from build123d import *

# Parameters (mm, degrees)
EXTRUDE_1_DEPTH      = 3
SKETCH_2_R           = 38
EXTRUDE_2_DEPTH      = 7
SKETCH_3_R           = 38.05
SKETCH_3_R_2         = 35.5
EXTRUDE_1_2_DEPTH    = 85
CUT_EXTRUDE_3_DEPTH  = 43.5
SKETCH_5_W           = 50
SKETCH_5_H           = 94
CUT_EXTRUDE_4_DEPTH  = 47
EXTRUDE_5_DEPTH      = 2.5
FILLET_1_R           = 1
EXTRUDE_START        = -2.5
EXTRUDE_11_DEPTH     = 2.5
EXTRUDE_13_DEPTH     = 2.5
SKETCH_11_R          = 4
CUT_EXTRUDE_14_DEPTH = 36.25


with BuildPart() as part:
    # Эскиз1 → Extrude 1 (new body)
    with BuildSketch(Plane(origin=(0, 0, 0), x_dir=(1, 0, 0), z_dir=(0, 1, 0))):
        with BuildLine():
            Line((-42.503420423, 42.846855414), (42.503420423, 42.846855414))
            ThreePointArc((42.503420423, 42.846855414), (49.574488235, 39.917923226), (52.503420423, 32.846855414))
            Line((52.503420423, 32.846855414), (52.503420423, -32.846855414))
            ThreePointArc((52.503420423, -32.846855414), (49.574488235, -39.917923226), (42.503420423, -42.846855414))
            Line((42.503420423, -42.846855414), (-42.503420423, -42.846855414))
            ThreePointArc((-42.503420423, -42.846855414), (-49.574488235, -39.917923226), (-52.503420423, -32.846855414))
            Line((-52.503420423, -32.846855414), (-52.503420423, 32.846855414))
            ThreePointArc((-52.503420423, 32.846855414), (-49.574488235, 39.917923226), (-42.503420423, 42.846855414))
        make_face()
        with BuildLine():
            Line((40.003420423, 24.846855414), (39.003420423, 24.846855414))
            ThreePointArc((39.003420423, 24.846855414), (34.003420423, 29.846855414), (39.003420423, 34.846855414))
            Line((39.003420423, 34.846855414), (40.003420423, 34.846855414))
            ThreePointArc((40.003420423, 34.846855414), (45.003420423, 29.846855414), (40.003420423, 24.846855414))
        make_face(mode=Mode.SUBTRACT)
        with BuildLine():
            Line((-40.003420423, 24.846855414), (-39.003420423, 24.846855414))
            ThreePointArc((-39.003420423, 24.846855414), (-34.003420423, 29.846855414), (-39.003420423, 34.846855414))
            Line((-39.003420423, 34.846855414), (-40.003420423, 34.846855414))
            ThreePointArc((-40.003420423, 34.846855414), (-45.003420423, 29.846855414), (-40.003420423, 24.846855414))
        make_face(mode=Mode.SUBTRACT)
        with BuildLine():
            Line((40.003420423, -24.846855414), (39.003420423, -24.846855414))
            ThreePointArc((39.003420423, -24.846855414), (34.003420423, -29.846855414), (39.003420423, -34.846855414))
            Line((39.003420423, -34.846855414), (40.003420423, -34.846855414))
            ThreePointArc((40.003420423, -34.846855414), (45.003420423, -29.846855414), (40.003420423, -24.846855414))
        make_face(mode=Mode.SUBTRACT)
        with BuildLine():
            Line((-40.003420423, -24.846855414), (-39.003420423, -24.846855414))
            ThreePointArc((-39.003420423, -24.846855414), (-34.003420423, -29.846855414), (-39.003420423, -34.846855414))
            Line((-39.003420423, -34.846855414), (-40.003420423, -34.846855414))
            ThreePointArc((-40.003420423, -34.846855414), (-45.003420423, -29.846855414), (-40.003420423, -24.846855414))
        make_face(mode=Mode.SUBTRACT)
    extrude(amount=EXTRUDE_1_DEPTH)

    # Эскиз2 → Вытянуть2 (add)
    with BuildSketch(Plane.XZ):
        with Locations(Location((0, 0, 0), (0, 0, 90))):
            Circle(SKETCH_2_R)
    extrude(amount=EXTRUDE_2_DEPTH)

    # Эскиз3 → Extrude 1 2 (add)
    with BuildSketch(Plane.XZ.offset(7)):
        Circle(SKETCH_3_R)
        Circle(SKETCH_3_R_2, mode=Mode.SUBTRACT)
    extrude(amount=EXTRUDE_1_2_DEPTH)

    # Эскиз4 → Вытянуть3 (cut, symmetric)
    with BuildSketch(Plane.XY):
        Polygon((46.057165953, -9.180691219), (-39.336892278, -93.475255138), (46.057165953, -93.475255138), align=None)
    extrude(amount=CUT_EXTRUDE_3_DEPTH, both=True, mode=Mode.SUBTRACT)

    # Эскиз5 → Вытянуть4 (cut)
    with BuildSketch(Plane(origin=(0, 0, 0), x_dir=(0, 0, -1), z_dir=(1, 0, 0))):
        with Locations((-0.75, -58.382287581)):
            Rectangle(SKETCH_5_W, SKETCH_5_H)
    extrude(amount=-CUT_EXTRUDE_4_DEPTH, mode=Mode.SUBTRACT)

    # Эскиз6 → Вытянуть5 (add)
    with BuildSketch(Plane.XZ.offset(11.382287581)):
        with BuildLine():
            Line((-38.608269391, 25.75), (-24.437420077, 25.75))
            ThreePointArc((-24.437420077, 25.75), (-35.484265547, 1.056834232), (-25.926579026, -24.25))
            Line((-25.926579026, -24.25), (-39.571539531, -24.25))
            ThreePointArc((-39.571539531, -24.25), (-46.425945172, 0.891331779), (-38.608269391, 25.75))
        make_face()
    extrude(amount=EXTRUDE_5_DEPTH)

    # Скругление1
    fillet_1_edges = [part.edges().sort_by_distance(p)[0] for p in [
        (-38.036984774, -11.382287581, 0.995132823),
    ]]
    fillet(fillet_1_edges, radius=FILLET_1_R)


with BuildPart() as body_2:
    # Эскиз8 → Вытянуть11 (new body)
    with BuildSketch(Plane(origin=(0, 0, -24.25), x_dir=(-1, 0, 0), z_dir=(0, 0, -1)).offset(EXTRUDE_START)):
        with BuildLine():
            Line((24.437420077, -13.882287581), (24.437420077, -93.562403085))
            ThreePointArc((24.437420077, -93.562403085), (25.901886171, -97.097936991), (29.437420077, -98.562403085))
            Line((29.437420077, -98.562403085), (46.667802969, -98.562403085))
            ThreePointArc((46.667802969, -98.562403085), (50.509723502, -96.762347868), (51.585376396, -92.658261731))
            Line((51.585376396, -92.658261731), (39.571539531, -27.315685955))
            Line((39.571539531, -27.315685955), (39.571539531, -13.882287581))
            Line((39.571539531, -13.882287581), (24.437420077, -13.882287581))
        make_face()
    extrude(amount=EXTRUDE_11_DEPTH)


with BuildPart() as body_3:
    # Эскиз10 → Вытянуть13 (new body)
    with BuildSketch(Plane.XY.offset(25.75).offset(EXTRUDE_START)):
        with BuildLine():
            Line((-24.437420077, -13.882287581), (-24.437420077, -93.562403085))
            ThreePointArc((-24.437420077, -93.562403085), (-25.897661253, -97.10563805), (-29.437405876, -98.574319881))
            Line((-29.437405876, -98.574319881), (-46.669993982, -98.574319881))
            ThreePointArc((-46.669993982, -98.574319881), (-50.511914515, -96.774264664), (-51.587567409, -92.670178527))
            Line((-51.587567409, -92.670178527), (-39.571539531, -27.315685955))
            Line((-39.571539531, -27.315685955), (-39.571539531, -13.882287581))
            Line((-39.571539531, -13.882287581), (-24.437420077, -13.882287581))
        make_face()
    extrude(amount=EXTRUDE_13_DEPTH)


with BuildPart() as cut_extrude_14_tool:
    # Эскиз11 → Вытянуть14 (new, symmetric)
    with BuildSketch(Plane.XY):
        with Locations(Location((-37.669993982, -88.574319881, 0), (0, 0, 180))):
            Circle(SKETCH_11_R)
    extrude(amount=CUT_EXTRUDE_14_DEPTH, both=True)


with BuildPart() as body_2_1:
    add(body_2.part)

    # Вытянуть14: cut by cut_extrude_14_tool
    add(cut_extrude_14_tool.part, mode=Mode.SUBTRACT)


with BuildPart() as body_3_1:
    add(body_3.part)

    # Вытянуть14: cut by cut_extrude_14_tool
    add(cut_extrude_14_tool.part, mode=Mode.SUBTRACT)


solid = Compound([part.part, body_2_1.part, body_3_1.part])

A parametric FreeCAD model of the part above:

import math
import FreeCAD as App
import Part
import Sketcher
from FreeCAD import Vector
Q = App.Units.Quantity


def edges_at(feature, points):
    """Names of the edges that pass closest to the given points."""
    edges = feature.Shape.Edges
    near = lambda p: min(range(len(edges)), key=lambda i: edges[i].distToShape(Part.Vertex(*p))[0])
    return sorted({f"Edge{near(p) + 1}" for p in points})

doc = App.newDocument("Part")
body = doc.addObject("PartDesign::Body", "Body")

# Sketch on XZ plane
sketch1 = body.newObject("Sketcher::SketchObject", "Sketch")
sketch1.AttachmentSupport = (doc.getObject("XZ_Plane"), [""])
sketch1.MapMode = "FlatFace"
sketch1.addGeometry([
    Part.LineSegment(Vector(42.5, -42.8, 0), Vector(-42.5, -42.8, 0)),  # 0
    Part.ArcOfCircle(Part.Circle(Vector(-42.5, -32.8, 0), Vector(0, 0, 1), 10), math.radians(180), math.radians(270)),  # 1
    Part.LineSegment(Vector(-52.5, -32.8, 0), Vector(-52.5, 32.8, 0)),  # 2
    Part.ArcOfCircle(Part.Circle(Vector(-42.5, 32.8, 0), Vector(0, 0, 1), 10), math.radians(90), math.radians(180)),  # 3
    Part.LineSegment(Vector(-42.5, 42.8, 0), Vector(42.5, 42.8, 0)),  # 4
    Part.ArcOfCircle(Part.Circle(Vector(42.5, 32.8, 0), Vector(0, 0, 1), 10), math.radians(0), math.radians(90)),  # 5
    Part.LineSegment(Vector(52.5, 32.8, 0), Vector(52.5, -32.8, 0)),  # 6
    Part.ArcOfCircle(Part.Circle(Vector(42.5, -32.8, 0), Vector(0, 0, 1), 10), math.radians(-90), math.radians(0)),  # 7
    Part.ArcOfCircle(Part.Circle(Vector(40, 29.8, 0), Vector(0, 0, 1), 5), math.radians(-90), math.radians(90)),  # 8
    Part.LineSegment(Vector(40, 34.8, 0), Vector(39, 34.8, 0)),  # 9
    Part.ArcOfCircle(Part.Circle(Vector(39, 29.8, 0), Vector(0, 0, 1), 5), math.radians(90), math.radians(270)),  # 10
    Part.LineSegment(Vector(39, 24.8, 0), Vector(40, 24.8, 0)),  # 11
    Part.LineSegment(Vector(-40, 24.8, 0), Vector(-39, 24.8, 0)),  # 12
    Part.ArcOfCircle(Part.Circle(Vector(-39, 29.8, 0), Vector(0, 0, 1), 5), math.radians(-90), math.radians(90)),  # 13
    Part.LineSegment(Vector(-39, 34.8, 0), Vector(-40, 34.8, 0)),  # 14
    Part.ArcOfCircle(Part.Circle(Vector(-40, 29.8, 0), Vector(0, 0, 1), 5), math.radians(90), math.radians(270)),  # 15
    Part.LineSegment(Vector(40, -24.8, 0), Vector(39, -24.8, 0)),  # 16
    Part.ArcOfCircle(Part.Circle(Vector(39, -29.8, 0), Vector(0, 0, 1), 5), math.radians(90), math.radians(270)),  # 17
    Part.LineSegment(Vector(39, -34.8, 0), Vector(40, -34.8, 0)),  # 18
    Part.ArcOfCircle(Part.Circle(Vector(40, -29.8, 0), Vector(0, 0, 1), 5), math.radians(-90), math.radians(90)),  # 19
    Part.ArcOfCircle(Part.Circle(Vector(-40, -29.8, 0), Vector(0, 0, 1), 5), math.radians(90), math.radians(270)),  # 20
    Part.LineSegment(Vector(-40, -34.8, 0), Vector(-39, -34.8, 0)),  # 21
    Part.ArcOfCircle(Part.Circle(Vector(-39, -29.8, 0), Vector(0, 0, 1), 5), math.radians(-90), math.radians(90)),  # 22
    Part.LineSegment(Vector(-39, -24.8, 0), Vector(-40, -24.8, 0)),  # 23
], False)
sketch1.addConstraint([
    Sketcher.Constraint("Tangent", 0, 2, 1, 2),
    Sketcher.Constraint("Tangent", 1, 1, 2, 1),
    Sketcher.Constraint("Tangent", 2, 2, 3, 2),
    Sketcher.Constraint("Tangent", 3, 1, 4, 1),
    Sketcher.Constraint("Tangent", 4, 2, 5, 2),
    Sketcher.Constraint("Tangent", 5, 1, 6, 1),
    Sketcher.Constraint("Tangent", 6, 2, 7, 2),
    Sketcher.Constraint("Tangent", 7, 1, 0, 1),
    Sketcher.Constraint("Tangent", 8, 2, 9, 1),
    Sketcher.Constraint("Tangent", 9, 2, 10, 1),
    Sketcher.Constraint("Tangent", 10, 2, 11, 1),
    Sketcher.Constraint("Tangent", 11, 2, 8, 1),
    Sketcher.Constraint("Tangent", 12, 2, 13, 1),
    Sketcher.Constraint("Tangent", 13, 2, 14, 1),
    Sketcher.Constraint("Tangent", 14, 2, 15, 1),
    Sketcher.Constraint("Tangent", 15, 2, 12, 1),
    Sketcher.Constraint("Tangent", 16, 2, 17, 1),
    Sketcher.Constraint("Tangent", 17, 2, 18, 1),
    Sketcher.Constraint("Tangent", 18, 2, 19, 1),
    Sketcher.Constraint("Tangent", 19, 2, 16, 1),
    Sketcher.Constraint("Tangent", 20, 2, 21, 1),
    Sketcher.Constraint("Tangent", 21, 2, 22, 1),
    Sketcher.Constraint("Tangent", 22, 2, 23, 1),
    Sketcher.Constraint("Tangent", 23, 2, 20, 1),
    Sketcher.Constraint("Horizontal", 0),
    Sketcher.Constraint("Vertical", 2),
    Sketcher.Constraint("Horizontal", 4),
    Sketcher.Constraint("Vertical", 6),
    Sketcher.Constraint("Horizontal", 9),
    Sketcher.Constraint("Horizontal", 11),
    Sketcher.Constraint("Horizontal", 12),
    Sketcher.Constraint("Horizontal", 14),
    Sketcher.Constraint("Horizontal", 16),
    Sketcher.Constraint("Horizontal", 18),
    Sketcher.Constraint("Horizontal", 21),
    Sketcher.Constraint("Horizontal", 23),
    Sketcher.Constraint("Equal", 1, 3),
    Sketcher.Constraint("Equal", 3, 5),
    Sketcher.Constraint("Equal", 5, 7),
    Sketcher.Constraint("Equal", 10, 13),
    Sketcher.Constraint("Equal", 15, 17),
    Sketcher.Constraint("Equal", 19, 20),
    Sketcher.Constraint("Symmetric", 1, 3, 5, 3, -1, 1),
    Sketcher.Constraint("Symmetric", 13, 3, 17, 3, -1, 1),
    Sketcher.Constraint("Symmetric", 8, 3, 20, 3, -1, 1),
    Sketcher.Constraint("Symmetric", 10, 3, 13, 3, -2),
    Sketcher.Constraint("Vertical", 8, 3, 19, 3),
    Sketcher.Constraint("Vertical", 15, 3, 20, 3),
    Sketcher.Constraint("Vertical", 13, 3, 22, 3),
    Sketcher.Constraint("Radius", 1, Q("10 mm")),
    Sketcher.Constraint("Radius", 8, Q("5 mm")),
    Sketcher.Constraint("DistanceX", 9, 2, 9, 1, Q("1 mm")),
    Sketcher.Constraint("DistanceY", 8, 3, 5, 3, Q("3 mm")),
    Sketcher.Constraint("DistanceX", 8, 3, 5, 3, Q("2.5 mm")),
    Sketcher.Constraint("DistanceX", 0, 2, 0, 1, Q("85.006841 mm")),
    Sketcher.Constraint("DistanceY", 2, 1, 2, 2, Q("65.693711 mm")),
])
pad1 = body.newObject("PartDesign::Pad", "Pad")
pad1.Profile = sketch1
pad1.Length = 3
pad1.Reversed = True

# Sketch on XZ plane
sketch2 = body.newObject("Sketcher::SketchObject", "Sketch001")
sketch2.AttachmentSupport = (doc.getObject("XZ_Plane"), [""])
sketch2.MapMode = "FlatFace"
sketch2.addGeometry(Part.Circle(Vector(0, 0, 0), Vector(0, 0, 1), 38), False)
sketch2.addConstraint([
    Sketcher.Constraint("Coincident", 0, 3, -1, 1),
    Sketcher.Constraint("Diameter", 0, Q("76 mm")),
])
pad2 = body.newObject("PartDesign::Pad", "Pad001")
pad2.Profile = sketch2
pad2.Length = 7

# Sketch on XZ plane
sketch3 = body.newObject("Sketcher::SketchObject", "Sketch002")
sketch3.AttachmentSupport = (doc.getObject("XZ_Plane"), [""])
sketch3.MapMode = "FlatFace"
sketch3.AttachmentOffset = App.Placement(Vector(0, 0, 7), App.Rotation())
sketch3.addGeometry([
    Part.Circle(Vector(0, 0, 0), Vector(0, 0, 1), 38),
    Part.Circle(Vector(0, 0, 0), Vector(0, 0, 1), 36),
], False)
sketch3.addConstraint([
    Sketcher.Constraint("Coincident", 0, 3, -1, 1),
    Sketcher.Constraint("Coincident", 1, 3, -1, 1),
    Sketcher.Constraint("Diameter", 1, Q("71 mm")),
    Sketcher.Constraint("Diameter", 0, Q("76.1 mm")),
])
pad3 = body.newObject("PartDesign::Pad", "Pad002")
pad3.Profile = sketch3
pad3.Length = 85

# Sketch on XY plane
sketch4 = body.newObject("Sketcher::SketchObject", "Sketch003")
sketch4.AttachmentSupport = (doc.getObject("XY_Plane"), [""])
sketch4.MapMode = "FlatFace"
sketch4.addGeometry([
    Part.LineSegment(Vector(46, -9, 0), Vector(-39, -93, 0)),
    Part.LineSegment(Vector(-39, -93, 0), Vector(46, -93, 0)),
    Part.LineSegment(Vector(46, -93, 0), Vector(46, -9, 0)),
], False)
sketch4.addConstraint([
    Sketcher.Constraint("Coincident", 0, 2, 1, 1),
    Sketcher.Constraint("Coincident", 1, 2, 2, 1),
    Sketcher.Constraint("Coincident", 2, 2, 0, 1),
    Sketcher.Constraint("Horizontal", 1),
    Sketcher.Constraint("Vertical", 2),
    Sketcher.Constraint("DistanceX", 1, 1, 1, 2, Q("85.394058 mm")),
    Sketcher.Constraint("DistanceY", 2, 1, 2, 2, Q("84.294564 mm")),
    Sketcher.Constraint("DistanceY", 2, 2, -1, 1, Q("9.180691 mm")),
    Sketcher.Constraint("DistanceX", 0, 2, -1, 1, Q("39.336892 mm")),
])
pocket1 = body.newObject("PartDesign::Pocket", "Pocket")
pocket1.Profile = sketch4
pocket1.Length = 87
pocket1.Midplane = True

# Sketch on YZ plane
sketch5 = body.newObject("Sketcher::SketchObject", "Sketch004")
sketch5.AttachmentSupport = (doc.getObject("YZ_Plane"), [""])
sketch5.MapMode = "FlatFace"
sketch5.addGeometry([
    Part.LineSegment(Vector(-11, 26, 0), Vector(-105, 26, 0)),
    Part.LineSegment(Vector(-105, 26, 0), Vector(-105, -24, 0)),
    Part.LineSegment(Vector(-105, -24, 0), Vector(-11, -24, 0)),
    Part.LineSegment(Vector(-11, -24, 0), Vector(-11, 26, 0)),
], False)
sketch5.addConstraint([
    Sketcher.Constraint("Coincident", 0, 2, 1, 1),
    Sketcher.Constraint("Coincident", 1, 2, 2, 1),
    Sketcher.Constraint("Coincident", 2, 2, 3, 1),
    Sketcher.Constraint("Coincident", 3, 2, 0, 1),
    Sketcher.Constraint("Horizontal", 0),
    Sketcher.Constraint("Vertical", 1),
    Sketcher.Constraint("Horizontal", 2),
    Sketcher.Constraint("Vertical", 3),
    Sketcher.Constraint("DistanceX", 0, 2, 0, 1, Q("94 mm")),
    Sketcher.Constraint("DistanceY", 1, 2, 1, 1, Q("50 mm")),
    Sketcher.Constraint("DistanceY", -1, 1, 0, 2, Q("25.75 mm")),
    Sketcher.Constraint("DistanceX", 0, 2, -1, 1, Q("105.382288 mm")),
])
pocket2 = body.newObject("PartDesign::Pocket", "Pocket001")
pocket2.Profile = sketch5
pocket2.Length = 47

# Sketch on XZ plane
sketch6 = body.newObject("Sketcher::SketchObject", "Sketch005")
sketch6.AttachmentSupport = (doc.getObject("XZ_Plane"), [""])
sketch6.MapMode = "FlatFace"
sketch6.AttachmentOffset = App.Placement(Vector(0, 0, 11.382288), App.Rotation())
sketch6.addGeometry([
    Part.LineSegment(Vector(-24, 26, 0), Vector(-39, 26, 0)),
    Part.ArcOfCircle(Part.Circle(Vector(0, 0, 0), Vector(0, 0, 1), 46), math.radians(146), math.radians(212)),
    Part.LineSegment(Vector(-40, -24, 0), Vector(-26, -24, 0)),
    Part.ArcOfCircle(Part.Circle(Vector(0, 0, 0), Vector(0, 0, 1), 36), math.radians(134), math.radians(223)),
], False)
sketch6.addConstraint([
    Sketcher.Constraint("Coincident", 0, 2, 1, 1),
    Sketcher.Constraint("Coincident", 1, 2, 2, 1),
    Sketcher.Constraint("Coincident", 2, 2, 3, 2),
    Sketcher.Constraint("Coincident", 3, 1, 0, 1),
    Sketcher.Constraint("Horizontal", 0),
    Sketcher.Constraint("Horizontal", 2),
    Sketcher.Constraint("Coincident", 3, 3, -1, 1),
    Sketcher.Constraint("PointOnObject", 1, 3, -1),
    Sketcher.Constraint("Radius", 3, Q("35.5 mm")),
    Sketcher.Constraint("DistanceY", 1, 2, 0, 2, Q("50 mm")),
    Sketcher.Constraint("DistanceY", -1, 1, 0, 2, Q("25.75 mm")),
    Sketcher.Constraint("Radius", 1, Q("46.274515 mm")),
    Sketcher.Constraint("DistanceX", 0, 2, 0, 1, Q("14.170849 mm")),
])
pad4 = body.newObject("PartDesign::Pad", "Pad003")
pad4.Profile = sketch6
pad4.Length = 2.5
doc.recompute()

fillet = body.newObject("PartDesign::Fillet", "Fillet")
fillet.Base = (pad4, edges_at(pad4, [(-38.037, -11.382, 0.995)]))
fillet.Radius = 1
body2 = doc.addObject("PartDesign::Body", "Body001")

# Sketch on XY plane
sketch7 = body2.newObject("Sketcher::SketchObject", "Sketch006")
sketch7.AttachmentSupport = (doc.getObject("XY_Plane001"), [""])
sketch7.MapMode = "FlatFace"
sketch7.AttachmentOffset = App.Placement(Vector(0, 0, -21.75), App.Rotation())
sketch7.addGeometry([
    Part.LineSegment(Vector(-24, -14, 0), Vector(-24, -94, 0)),  # 0
    Part.ArcOfCircle(Part.Circle(Vector(-29, -94, 0), Vector(0, 0, 1), 5), math.radians(-90), math.radians(0)),  # 1
    Part.LineSegment(Vector(-29, -99, 0), Vector(-47, -99, 0)),  # 2
    Part.ArcOfCircle(Part.Circle(Vector(-47, -94, 0), Vector(0, 0, 1), 5), math.radians(170), math.radians(270)),  # 3
    Part.LineSegment(Vector(-52, -93, 0), Vector(-40, -27, 0)),  # 4
    Part.LineSegment(Vector(-40, -27, 0), Vector(-40, -14, 0)),  # 5
    Part.LineSegment(Vector(-40, -14, 0), Vector(-24, -14, 0)),  # 6
], False)
sketch7.addConstraint([
    Sketcher.Constraint("Tangent", 0, 2, 1, 2),
    Sketcher.Constraint("Tangent", 1, 1, 2, 1),
    Sketcher.Constraint("Tangent", 2, 2, 3, 2),
    Sketcher.Constraint("Tangent", 3, 1, 4, 1),
    Sketcher.Constraint("Coincident", 4, 2, 5, 1),
    Sketcher.Constraint("Coincident", 5, 2, 6, 1),
    Sketcher.Constraint("Coincident", 6, 2, 0, 1),
    Sketcher.Constraint("Vertical", 0),
    Sketcher.Constraint("Horizontal", 2),
    Sketcher.Constraint("Vertical", 5),
    Sketcher.Constraint("Horizontal", 6),
    Sketcher.Constraint("Equal", 1, 3),
    Sketcher.Constraint("Radius", 1, Q("5 mm")),
    Sketcher.Constraint("DistanceY", 5, 1, 5, 2, Q("13.433398 mm")),
    Sketcher.Constraint("DistanceX", 6, 1, 6, 2, Q("15.134119 mm")),
    Sketcher.Constraint("DistanceX", 2, 2, 2, 1, Q("17.230383 mm")),
    Sketcher.Constraint("DistanceY", 0, 2, 0, 1, Q("79.680116 mm")),
    Sketcher.Constraint("DistanceX", 1, 3, -1, 1, Q("29.43742 mm")),
    Sketcher.Constraint("DistanceY", 3, 1, -1, 1, Q("92.658262 mm")),
])
pad5 = body2.newObject("PartDesign::Pad", "Pad004")
pad5.Profile = sketch7
pad5.Length = 2.5
pad5.Reversed = True
body3 = doc.addObject("PartDesign::Body", "Body002")

# Sketch on XY plane
sketch8 = body3.newObject("Sketcher::SketchObject", "Sketch007")
sketch8.AttachmentSupport = (doc.getObject("XY_Plane002"), [""])
sketch8.MapMode = "FlatFace"
sketch8.AttachmentOffset = App.Placement(Vector(0, 0, 23.25), App.Rotation())
sketch8.addGeometry([
    Part.LineSegment(Vector(-24.4, -93.6, 0), Vector(-24.4, -13.9, 0)),  # 0
    Part.LineSegment(Vector(-24.4, -13.9, 0), Vector(-39.6, -13.9, 0)),  # 1
    Part.LineSegment(Vector(-39.6, -13.9, 0), Vector(-39.6, -27.3, 0)),  # 2
    Part.LineSegment(Vector(-39.6, -27.3, 0), Vector(-51.6, -92.7, 0)),  # 3
    Part.ArcOfCircle(Part.Circle(Vector(-46.7, -93.6, 0), Vector(0, 0, 1), 5), math.radians(170), math.radians(270)),  # 4
    Part.LineSegment(Vector(-46.7, -98.6, 0), Vector(-29.4, -98.6, 0)),  # 5
    Part.ArcOfCircle(Part.Circle(Vector(-29.4, -93.6, 0), Vector(0, 0, 1), 5), math.radians(-90), math.radians(0)),  # 6
], False)
sketch8.addConstraint([
    Sketcher.Constraint("Coincident", 0, 2, 1, 1),
    Sketcher.Constraint("Coincident", 1, 2, 2, 1),
    Sketcher.Constraint("Coincident", 2, 2, 3, 1),
    Sketcher.Constraint("Tangent", 3, 2, 4, 1),
    Sketcher.Constraint("Tangent", 4, 2, 5, 1),
    Sketcher.Constraint("Tangent", 5, 2, 6, 1),
    Sketcher.Constraint("Coincident", 6, 2, 0, 1),
    Sketcher.Constraint("Vertical", 0),
    Sketcher.Constraint("Horizontal", 1),
    Sketcher.Constraint("Vertical", 2),
    Sketcher.Constraint("Horizontal", 5),
    Sketcher.Constraint("Equal", 4, 6),
    Sketcher.Constraint("Radius", 4, Q("5 mm")),
    Sketcher.Constraint("DistanceY", 2, 2, 2, 1, Q("13.433398 mm")),
    Sketcher.Constraint("DistanceX", 1, 2, 1, 1, Q("15.134119 mm")),
    Sketcher.Constraint("DistanceX", 5, 1, 5, 2, Q("17.232588 mm")),
    Sketcher.Constraint("Distance", 3, Q("66.449941 mm")),
    Sketcher.Constraint("DistanceY", 0, 1, 0, 2, Q("79.680116 mm")),
    Sketcher.Constraint("DistanceY", 4, 3, -1, 1, Q("93.57432 mm")),
    Sketcher.Constraint("DistanceX", 0, 2, -1, 1, Q("24.43742 mm")),
])
pad6 = body3.newObject("PartDesign::Pad", "Pad005")
pad6.Profile = sketch8
pad6.Length = 2.5
body4 = doc.addObject("PartDesign::Body", "Body003")

# Sketch on XY plane
sketch9 = body4.newObject("Sketcher::SketchObject", "Sketch008")
sketch9.AttachmentSupport = (doc.getObject("XY_Plane003"), [""])
sketch9.MapMode = "FlatFace"
sketch9.addGeometry(Part.Circle(Vector(-37.7, -88.6, 0), Vector(0, 0, 1), 4), False)
sketch9.addConstraint([
    Sketcher.Constraint("Diameter", 0, Q("8 mm")),
    Sketcher.Constraint("DistanceY", 0, 3, -1, 1, Q("88.57432 mm")),
    Sketcher.Constraint("DistanceX", 0, 3, -1, 1, Q("37.669994 mm")),
])
pad7 = body4.newObject("PartDesign::Pad", "Pad006")
pad7.Profile = sketch9
pad7.Length = 72.5
pad7.Midplane = True
doc.recompute()

body5 = doc.addObject("PartDesign::Body", "Body004")
body5.BaseFeature = body4
boolean = body2.newObject("PartDesign::Boolean", "Boolean")
boolean.Type = "Cut"
boolean.addObjects([body5])
doc.recompute()

boolean2 = body3.newObject("PartDesign::Boolean", "Boolean001")
boolean2.Type = "Cut"
boolean2.addObjects([body4])

doc.recompute()
